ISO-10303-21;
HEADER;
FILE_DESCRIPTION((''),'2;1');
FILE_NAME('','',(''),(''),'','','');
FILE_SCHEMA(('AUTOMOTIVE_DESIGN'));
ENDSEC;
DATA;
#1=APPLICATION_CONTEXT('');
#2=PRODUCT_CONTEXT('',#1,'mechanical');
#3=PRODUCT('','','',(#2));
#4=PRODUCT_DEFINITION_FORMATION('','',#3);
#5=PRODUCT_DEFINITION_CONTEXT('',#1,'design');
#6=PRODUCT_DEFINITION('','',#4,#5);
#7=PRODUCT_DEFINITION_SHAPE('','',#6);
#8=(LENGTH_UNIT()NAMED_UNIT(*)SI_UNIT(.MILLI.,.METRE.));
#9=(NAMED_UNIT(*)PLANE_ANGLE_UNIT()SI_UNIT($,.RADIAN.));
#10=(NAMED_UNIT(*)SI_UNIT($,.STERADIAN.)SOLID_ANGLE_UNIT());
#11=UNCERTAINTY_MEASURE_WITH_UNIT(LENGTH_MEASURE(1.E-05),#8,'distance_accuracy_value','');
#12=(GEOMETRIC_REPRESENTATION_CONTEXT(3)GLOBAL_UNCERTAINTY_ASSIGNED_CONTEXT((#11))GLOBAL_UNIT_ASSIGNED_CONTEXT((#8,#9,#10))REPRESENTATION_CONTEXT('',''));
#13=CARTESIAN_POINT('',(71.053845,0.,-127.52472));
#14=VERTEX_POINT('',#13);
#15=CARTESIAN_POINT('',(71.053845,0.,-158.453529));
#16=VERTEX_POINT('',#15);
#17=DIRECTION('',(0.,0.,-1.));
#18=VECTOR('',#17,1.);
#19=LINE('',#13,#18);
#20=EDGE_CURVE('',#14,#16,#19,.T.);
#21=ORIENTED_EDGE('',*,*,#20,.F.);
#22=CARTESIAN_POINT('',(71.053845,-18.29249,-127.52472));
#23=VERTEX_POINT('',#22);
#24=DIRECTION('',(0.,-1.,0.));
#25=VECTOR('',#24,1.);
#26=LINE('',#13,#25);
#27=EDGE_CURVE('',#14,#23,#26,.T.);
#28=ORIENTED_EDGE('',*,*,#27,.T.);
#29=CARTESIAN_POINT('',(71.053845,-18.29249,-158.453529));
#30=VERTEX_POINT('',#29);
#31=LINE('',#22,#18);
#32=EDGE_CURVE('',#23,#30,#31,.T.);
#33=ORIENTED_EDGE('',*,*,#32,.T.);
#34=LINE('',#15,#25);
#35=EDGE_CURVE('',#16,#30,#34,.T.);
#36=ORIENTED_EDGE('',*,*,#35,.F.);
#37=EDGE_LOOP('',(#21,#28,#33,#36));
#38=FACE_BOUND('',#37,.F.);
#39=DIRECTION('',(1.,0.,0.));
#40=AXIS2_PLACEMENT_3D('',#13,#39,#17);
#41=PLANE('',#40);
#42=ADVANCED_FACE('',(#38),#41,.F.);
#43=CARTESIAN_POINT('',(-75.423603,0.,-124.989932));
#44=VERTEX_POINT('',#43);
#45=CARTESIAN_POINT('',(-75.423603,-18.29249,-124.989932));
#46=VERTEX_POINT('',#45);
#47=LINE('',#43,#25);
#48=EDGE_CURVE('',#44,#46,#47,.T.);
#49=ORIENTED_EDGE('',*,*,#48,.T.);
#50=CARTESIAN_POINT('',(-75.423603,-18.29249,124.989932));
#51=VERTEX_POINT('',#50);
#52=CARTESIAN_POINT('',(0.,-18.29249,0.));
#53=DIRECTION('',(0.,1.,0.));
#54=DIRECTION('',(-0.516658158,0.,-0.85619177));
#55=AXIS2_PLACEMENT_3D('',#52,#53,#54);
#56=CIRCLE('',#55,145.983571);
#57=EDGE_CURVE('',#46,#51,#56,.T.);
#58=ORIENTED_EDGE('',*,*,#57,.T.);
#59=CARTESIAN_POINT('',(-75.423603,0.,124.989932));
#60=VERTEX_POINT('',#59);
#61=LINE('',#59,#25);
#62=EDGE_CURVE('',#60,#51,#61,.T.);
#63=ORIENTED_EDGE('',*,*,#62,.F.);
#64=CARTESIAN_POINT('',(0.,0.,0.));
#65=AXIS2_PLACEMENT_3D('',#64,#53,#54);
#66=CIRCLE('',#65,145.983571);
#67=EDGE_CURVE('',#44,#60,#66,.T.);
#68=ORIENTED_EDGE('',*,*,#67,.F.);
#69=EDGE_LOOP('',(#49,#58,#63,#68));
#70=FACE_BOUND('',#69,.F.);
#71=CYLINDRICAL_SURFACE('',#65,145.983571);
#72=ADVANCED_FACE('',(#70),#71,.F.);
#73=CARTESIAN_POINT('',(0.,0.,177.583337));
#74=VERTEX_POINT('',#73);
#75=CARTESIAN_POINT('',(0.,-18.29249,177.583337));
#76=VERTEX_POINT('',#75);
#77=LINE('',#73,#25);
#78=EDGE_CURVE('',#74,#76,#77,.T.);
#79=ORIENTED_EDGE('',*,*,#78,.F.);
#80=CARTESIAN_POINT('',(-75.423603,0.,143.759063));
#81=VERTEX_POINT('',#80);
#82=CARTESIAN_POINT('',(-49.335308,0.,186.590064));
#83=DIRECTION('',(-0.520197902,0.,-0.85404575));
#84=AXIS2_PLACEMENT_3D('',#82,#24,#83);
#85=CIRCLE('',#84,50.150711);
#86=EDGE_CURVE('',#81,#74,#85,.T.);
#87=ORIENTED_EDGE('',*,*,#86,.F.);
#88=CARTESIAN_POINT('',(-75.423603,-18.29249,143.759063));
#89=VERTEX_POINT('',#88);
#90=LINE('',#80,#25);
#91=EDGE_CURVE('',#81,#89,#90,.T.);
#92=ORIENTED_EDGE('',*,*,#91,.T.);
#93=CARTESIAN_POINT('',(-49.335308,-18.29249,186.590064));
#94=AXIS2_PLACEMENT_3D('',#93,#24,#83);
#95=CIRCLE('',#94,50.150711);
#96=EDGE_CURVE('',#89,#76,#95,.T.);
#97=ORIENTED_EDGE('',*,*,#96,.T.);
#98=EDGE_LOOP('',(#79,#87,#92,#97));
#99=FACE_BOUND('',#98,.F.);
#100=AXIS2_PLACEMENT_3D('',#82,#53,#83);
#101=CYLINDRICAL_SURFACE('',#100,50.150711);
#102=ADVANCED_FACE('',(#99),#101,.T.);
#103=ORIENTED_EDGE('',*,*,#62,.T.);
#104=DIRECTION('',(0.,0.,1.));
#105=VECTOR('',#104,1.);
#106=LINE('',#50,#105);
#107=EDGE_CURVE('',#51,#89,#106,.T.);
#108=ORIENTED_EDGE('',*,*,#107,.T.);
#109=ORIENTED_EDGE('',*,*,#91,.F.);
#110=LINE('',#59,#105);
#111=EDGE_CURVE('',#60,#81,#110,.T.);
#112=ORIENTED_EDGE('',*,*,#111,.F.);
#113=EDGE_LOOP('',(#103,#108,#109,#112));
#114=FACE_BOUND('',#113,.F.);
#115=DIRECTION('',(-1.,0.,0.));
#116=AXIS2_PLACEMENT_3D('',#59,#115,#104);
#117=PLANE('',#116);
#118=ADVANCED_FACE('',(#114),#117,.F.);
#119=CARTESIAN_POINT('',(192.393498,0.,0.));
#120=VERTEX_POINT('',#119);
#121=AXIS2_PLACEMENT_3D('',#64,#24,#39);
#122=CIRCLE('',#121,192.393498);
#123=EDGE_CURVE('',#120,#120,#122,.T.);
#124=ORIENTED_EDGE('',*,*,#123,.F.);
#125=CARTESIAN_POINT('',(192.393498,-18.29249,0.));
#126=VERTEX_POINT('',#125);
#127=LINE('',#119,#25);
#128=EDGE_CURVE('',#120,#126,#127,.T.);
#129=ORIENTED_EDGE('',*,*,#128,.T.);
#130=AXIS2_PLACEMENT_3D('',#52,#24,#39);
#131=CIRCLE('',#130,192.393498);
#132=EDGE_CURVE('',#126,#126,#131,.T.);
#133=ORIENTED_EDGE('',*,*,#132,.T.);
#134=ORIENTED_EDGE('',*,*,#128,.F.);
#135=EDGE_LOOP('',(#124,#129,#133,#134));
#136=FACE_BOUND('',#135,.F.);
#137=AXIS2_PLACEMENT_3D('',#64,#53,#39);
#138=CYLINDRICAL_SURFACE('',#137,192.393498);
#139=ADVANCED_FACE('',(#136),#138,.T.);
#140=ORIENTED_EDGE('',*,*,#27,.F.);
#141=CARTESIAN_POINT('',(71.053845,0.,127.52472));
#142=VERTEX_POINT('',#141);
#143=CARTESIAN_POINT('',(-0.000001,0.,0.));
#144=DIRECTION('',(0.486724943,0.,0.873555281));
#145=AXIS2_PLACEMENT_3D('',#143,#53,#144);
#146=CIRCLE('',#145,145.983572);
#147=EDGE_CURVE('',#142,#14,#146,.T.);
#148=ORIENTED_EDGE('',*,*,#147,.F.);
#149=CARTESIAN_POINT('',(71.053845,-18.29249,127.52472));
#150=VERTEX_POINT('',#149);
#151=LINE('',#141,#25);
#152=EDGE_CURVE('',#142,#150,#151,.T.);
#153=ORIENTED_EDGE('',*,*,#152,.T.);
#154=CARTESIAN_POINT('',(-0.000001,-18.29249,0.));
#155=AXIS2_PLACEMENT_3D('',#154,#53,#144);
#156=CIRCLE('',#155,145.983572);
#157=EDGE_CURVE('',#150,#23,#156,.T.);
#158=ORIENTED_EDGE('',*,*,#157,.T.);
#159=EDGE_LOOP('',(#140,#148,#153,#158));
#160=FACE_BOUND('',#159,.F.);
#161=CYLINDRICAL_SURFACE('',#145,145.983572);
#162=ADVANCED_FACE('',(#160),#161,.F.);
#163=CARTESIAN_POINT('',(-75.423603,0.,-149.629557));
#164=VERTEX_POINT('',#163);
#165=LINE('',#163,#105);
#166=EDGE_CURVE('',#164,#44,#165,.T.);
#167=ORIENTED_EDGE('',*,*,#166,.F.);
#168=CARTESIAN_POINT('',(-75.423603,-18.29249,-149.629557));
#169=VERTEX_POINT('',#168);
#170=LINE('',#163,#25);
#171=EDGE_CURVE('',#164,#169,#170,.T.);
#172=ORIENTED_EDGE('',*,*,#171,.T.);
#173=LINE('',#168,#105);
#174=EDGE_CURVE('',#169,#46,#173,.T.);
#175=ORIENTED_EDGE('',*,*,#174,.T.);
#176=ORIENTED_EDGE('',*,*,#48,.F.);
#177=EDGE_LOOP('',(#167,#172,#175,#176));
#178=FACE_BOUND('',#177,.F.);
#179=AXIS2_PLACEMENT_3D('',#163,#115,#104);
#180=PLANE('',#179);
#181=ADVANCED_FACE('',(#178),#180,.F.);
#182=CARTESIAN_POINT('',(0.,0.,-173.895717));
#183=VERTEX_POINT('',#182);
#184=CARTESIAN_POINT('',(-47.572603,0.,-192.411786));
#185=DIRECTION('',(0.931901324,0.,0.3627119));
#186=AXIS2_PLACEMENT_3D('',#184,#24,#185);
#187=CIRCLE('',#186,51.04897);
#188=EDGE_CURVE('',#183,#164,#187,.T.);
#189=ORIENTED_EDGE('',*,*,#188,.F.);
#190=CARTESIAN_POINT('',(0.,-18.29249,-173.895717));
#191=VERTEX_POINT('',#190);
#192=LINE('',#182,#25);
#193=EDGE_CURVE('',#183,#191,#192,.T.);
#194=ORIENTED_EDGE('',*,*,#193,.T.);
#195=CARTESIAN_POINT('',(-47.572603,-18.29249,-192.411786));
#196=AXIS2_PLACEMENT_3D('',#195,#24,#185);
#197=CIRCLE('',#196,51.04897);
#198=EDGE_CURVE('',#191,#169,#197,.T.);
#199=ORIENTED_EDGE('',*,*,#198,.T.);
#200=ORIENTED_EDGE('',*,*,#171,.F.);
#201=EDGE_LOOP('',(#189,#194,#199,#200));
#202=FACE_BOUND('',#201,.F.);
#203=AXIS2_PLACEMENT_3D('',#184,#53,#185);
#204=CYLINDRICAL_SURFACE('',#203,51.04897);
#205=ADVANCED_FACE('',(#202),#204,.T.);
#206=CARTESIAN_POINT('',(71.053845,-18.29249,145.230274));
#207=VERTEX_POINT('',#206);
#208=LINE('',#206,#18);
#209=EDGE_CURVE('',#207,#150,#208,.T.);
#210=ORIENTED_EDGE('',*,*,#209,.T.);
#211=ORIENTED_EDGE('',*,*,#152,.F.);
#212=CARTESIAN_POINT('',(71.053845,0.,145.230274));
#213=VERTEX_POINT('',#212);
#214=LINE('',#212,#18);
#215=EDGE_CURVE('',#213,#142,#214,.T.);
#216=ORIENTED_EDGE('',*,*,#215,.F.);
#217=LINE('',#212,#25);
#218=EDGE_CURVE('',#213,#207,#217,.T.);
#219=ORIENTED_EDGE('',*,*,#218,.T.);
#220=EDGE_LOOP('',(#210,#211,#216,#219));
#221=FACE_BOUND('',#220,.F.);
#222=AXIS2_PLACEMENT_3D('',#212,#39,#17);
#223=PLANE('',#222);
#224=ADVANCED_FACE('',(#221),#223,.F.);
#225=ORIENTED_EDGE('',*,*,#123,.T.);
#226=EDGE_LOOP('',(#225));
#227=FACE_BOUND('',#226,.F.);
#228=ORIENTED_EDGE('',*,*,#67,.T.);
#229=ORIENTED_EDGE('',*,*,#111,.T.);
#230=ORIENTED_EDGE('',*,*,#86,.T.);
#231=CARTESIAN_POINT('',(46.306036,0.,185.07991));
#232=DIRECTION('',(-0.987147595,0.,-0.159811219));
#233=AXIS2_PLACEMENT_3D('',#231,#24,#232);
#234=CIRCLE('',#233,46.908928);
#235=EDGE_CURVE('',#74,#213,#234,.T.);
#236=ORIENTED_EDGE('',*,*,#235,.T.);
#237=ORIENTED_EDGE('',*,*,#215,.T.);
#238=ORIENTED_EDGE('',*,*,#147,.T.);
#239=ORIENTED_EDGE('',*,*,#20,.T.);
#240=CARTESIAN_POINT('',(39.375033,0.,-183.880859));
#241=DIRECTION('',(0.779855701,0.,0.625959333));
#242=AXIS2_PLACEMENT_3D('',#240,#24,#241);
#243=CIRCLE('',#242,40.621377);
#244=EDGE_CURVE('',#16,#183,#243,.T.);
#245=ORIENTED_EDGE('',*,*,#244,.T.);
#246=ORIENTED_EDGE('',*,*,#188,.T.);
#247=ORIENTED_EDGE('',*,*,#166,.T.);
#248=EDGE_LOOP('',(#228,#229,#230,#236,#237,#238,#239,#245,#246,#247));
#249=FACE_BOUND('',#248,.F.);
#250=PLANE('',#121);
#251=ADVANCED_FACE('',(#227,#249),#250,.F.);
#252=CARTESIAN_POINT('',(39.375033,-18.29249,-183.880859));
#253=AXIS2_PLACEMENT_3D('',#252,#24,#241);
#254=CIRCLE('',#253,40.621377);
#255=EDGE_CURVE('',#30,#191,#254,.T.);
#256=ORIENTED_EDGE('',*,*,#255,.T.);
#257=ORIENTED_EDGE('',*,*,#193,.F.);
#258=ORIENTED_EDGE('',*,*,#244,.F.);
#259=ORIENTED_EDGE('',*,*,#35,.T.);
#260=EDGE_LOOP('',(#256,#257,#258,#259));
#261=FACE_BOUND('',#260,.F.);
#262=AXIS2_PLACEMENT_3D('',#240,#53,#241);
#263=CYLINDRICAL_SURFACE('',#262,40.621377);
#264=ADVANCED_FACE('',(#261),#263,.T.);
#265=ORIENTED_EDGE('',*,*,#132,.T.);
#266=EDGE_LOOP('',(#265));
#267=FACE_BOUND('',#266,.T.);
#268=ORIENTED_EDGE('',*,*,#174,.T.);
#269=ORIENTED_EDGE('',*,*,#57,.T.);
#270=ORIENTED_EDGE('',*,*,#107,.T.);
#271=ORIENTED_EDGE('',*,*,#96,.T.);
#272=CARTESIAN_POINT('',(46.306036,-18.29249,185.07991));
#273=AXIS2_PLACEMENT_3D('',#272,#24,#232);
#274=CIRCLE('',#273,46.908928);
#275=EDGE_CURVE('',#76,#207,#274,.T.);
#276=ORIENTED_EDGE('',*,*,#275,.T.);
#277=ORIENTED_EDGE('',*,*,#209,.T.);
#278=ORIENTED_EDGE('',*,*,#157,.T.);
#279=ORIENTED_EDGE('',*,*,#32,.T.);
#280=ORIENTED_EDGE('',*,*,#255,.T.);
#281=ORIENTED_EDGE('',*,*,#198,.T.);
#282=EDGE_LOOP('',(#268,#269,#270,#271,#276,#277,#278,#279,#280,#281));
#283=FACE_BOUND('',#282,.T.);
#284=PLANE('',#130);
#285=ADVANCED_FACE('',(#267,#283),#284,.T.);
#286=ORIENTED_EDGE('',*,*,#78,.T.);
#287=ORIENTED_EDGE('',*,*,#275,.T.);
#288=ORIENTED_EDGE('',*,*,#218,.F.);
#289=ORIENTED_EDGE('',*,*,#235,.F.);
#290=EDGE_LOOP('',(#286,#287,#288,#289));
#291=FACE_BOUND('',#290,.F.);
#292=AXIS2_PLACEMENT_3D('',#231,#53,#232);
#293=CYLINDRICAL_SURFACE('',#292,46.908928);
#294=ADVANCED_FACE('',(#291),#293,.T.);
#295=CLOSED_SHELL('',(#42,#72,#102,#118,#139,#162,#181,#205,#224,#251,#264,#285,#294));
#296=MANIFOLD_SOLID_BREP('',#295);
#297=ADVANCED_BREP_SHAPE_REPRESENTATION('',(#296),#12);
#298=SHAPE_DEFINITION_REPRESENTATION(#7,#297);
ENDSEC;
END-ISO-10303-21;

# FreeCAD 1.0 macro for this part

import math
import FreeCAD as App
import Part
import Sketcher
Q = App.Units.Quantity

doc = App.newDocument("Part")
body = doc.addObject("PartDesign::Body", "Body")

sketch1 = doc.addObject("Sketcher::SketchObject", "Sketch")
body.addObject(sketch1)
sketch1.AttachmentSupport = (doc.XZ_Plane, [""])
sketch1.MapMode = "FlatFace"
sketch1.addGeometry(Part.Circle(App.Vector(0, 0, 0), App.Vector(0, 0, 1), 192), False)
sketch1.addGeometry(Part.LineSegment(App.Vector(-75, -150, 0), App.Vector(-75, -125, 0)), False)
sketch1.addGeometry(Part.ArcOfCircle(Part.Circle(App.Vector(0, 0, 0), App.Vector(0, 0, 1), 146), math.radians(121), math.radians(239)), False)
sketch1.addGeometry(Part.LineSegment(App.Vector(-75, 125, 0), App.Vector(-75, 144, 0)), False)
sketch1.addGeometry(Part.ArcOfCircle(Part.Circle(App.Vector(-49, 187, 0), App.Vector(0, 0, 1), 50), math.radians(-121), math.radians(-10)), False)
sketch1.addGeometry(Part.ArcOfCircle(Part.Circle(App.Vector(46, 185, 0), App.Vector(0, 0, 1), 47), math.radians(-171), math.radians(-58)), False)
sketch1.addGeometry(Part.LineSegment(App.Vector(71, 145, 0), App.Vector(71, 128, 0)), False)
sketch1.addGeometry(Part.ArcOfCircle(Part.Circle(App.Vector(0, 0, 0), App.Vector(0, 0, 1), 146), math.radians(-61), math.radians(61)), False)
sketch1.addGeometry(Part.LineSegment(App.Vector(71, -128, 0), App.Vector(71, -158, 0)), False)
sketch1.addGeometry(Part.ArcOfCircle(Part.Circle(App.Vector(39, -184, 0), App.Vector(0, 0, 1), 41), math.radians(39), math.radians(166)), False)
sketch1.addGeometry(Part.ArcOfCircle(Part.Circle(App.Vector(-48, -192, 0), App.Vector(0, 0, 1), 51), math.radians(21), math.radians(123)), False)
sketch1.addConstraint(Sketcher.Constraint("Coincident", 1, 2, 2, 2))
sketch1.addConstraint(Sketcher.Constraint("Coincident", 2, 1, 3, 1))
sketch1.addConstraint(Sketcher.Constraint("Coincident", 3, 2, 4, 1))
sketch1.addConstraint(Sketcher.Constraint("Coincident", 4, 2, 5, 1))
sketch1.addConstraint(Sketcher.Constraint("Coincident", 5, 2, 6, 1))
sketch1.addConstraint(Sketcher.Constraint("Coincident", 6, 2, 7, 2))
sketch1.addConstraint(Sketcher.Constraint("Coincident", 7, 1, 8, 1))
sketch1.addConstraint(Sketcher.Constraint("Coincident", 8, 2, 9, 1))
sketch1.addConstraint(Sketcher.Constraint("Coincident", 9, 2, 10, 1))
sketch1.addConstraint(Sketcher.Constraint("Coincident", 10, 2, 1, 1))
sketch1.addConstraint(Sketcher.Constraint("Vertical", 1))
sketch1.addConstraint(Sketcher.Constraint("Vertical", 3))
sketch1.addConstraint(Sketcher.Constraint("Vertical", 6))
sketch1.addConstraint(Sketcher.Constraint("Vertical", 8))
sketch1.addConstraint(Sketcher.Constraint("Coincident", 0, 3, -1, 1))
sketch1.addConstraint(Sketcher.Constraint("Coincident", 2, 3, -1, 1))
sketch1.addConstraint(Sketcher.Constraint("Coincident", 7, 3, -1, 1))
sketch1.addConstraint(Sketcher.Constraint("Equal", 2, 7))
sketch1.addConstraint(Sketcher.Constraint("PointOnObject", 4, 2, -2))
sketch1.addConstraint(Sketcher.Constraint("PointOnObject", 9, 2, -2))
sketch1.addConstraint(Sketcher.Constraint("Vertical", 1, 2, 2, 1))
sketch1.addConstraint(Sketcher.Constraint("Vertical", 6, 2, 7, 1))
sketch1.addConstraint(Sketcher.Constraint("Radius", 2, Q("145.983571 mm")))
sketch1.addConstraint(Sketcher.Constraint("Radius", 4, Q("50.150711 mm")))
sketch1.addConstraint(Sketcher.Constraint("Radius", 5, Q("46.908928 mm")))
sketch1.addConstraint(Sketcher.Constraint("Radius", 10, Q("51.04897 mm")))
sketch1.addConstraint(Sketcher.Constraint("Diameter", 0, Q("384.786996 mm")))
sketch1.addConstraint(Sketcher.Constraint("Radius", 9, Q("40.621377 mm")))
sketch1.addConstraint(Sketcher.Constraint("DistanceX", 1, 2, 10, 3, Q("27.851 mm")))
sketch1.addConstraint(Sketcher.Constraint("DistanceY", 3, 2, 4, 3, Q("42.831001 mm")))
sketch1.addConstraint(Sketcher.Constraint("DistanceY", 3, 1, 3, 2, Q("18.769131 mm")))
sketch1.addConstraint(Sketcher.Constraint("DistanceY", 8, 2, 8, 1, Q("30.928809 mm")))
sketch1.addConstraint(Sketcher.Constraint("DistanceX", 10, 3, 7, 3, Q("47.572602 mm")))
sketch1.addConstraint(Sketcher.Constraint("DistanceY", 9, 3, 10, 2, Q("34.251302 mm")))
sketch1.addConstraint(Sketcher.Constraint("DistanceY", 1, 1, 1, 2, Q("24.639625 mm")))
sketch1.addConstraint(Sketcher.Constraint("DistanceY", 6, 2, 6, 1, Q("17.705554 mm")))
pad1 = doc.addObject("PartDesign::Pad", "Pad")
body.addObject(pad1)
pad1.Profile = sketch1
pad1.Length = 18.29249

doc.recompute()
